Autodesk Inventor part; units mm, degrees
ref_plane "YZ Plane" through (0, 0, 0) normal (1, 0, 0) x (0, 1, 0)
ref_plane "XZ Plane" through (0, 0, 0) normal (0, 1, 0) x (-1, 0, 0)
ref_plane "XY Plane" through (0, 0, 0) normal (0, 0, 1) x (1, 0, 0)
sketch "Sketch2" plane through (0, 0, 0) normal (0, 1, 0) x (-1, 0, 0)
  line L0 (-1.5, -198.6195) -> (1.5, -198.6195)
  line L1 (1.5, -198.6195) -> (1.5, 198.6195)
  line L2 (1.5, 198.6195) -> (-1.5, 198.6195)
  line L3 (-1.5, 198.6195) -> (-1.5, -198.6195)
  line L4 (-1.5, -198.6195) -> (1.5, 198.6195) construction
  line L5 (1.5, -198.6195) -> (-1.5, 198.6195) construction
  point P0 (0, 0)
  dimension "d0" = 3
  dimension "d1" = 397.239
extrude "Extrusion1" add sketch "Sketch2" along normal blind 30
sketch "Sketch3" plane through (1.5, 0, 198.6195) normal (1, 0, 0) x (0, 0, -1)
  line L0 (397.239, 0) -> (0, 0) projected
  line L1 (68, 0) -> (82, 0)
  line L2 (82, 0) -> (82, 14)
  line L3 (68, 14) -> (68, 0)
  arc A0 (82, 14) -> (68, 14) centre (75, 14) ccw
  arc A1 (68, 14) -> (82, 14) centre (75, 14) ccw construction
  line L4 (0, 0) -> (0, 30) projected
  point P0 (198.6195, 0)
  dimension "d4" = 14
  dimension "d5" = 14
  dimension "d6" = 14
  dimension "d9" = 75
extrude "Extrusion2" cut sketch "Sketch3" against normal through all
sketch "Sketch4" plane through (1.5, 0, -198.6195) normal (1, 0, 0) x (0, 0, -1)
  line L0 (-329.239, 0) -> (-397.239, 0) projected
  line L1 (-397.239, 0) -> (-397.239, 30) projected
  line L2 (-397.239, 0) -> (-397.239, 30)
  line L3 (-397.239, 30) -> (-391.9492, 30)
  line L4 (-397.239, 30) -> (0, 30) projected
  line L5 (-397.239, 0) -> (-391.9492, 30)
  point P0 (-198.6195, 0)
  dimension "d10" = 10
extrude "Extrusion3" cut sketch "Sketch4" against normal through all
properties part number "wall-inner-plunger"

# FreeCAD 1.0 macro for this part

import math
import FreeCAD as App
import Part
import Sketcher
from FreeCAD import Vector
Q = App.Units.Quantity

doc = App.newDocument("Part")
body = doc.addObject("PartDesign::Body", "Body")

# Sketch on XZ plane
sketch1 = body.newObject("Sketcher::SketchObject", "Sketch")
sketch1.AttachmentSupport = (doc.getObject("XZ_Plane"), [""])
sketch1.MapMode = "FlatFace"
sketch1.addGeometry([
    Part.LineSegment(Vector(1.5, 198.6, 0), Vector(1.5, -198.6, 0)),
    Part.LineSegment(Vector(1.5, -198.6, 0), Vector(-1.5, -198.6, 0)),
    Part.LineSegment(Vector(-1.5, -198.6, 0), Vector(-1.5, 198.6, 0)),
    Part.LineSegment(Vector(-1.5, 198.6, 0), Vector(1.5, 198.6, 0)),
], False)
sketch1.addConstraint([
    Sketcher.Constraint("Coincident", 0, 2, 1, 1),
    Sketcher.Constraint("Coincident", 1, 2, 2, 1),
    Sketcher.Constraint("Coincident", 2, 2, 3, 1),
    Sketcher.Constraint("Coincident", 3, 2, 0, 1),
    Sketcher.Constraint("Vertical", 0),
    Sketcher.Constraint("Horizontal", 1),
    Sketcher.Constraint("Vertical", 2),
    Sketcher.Constraint("Horizontal", 3),
    Sketcher.Constraint("Symmetric", 0, 2, 2, 2, -1, 1),
    Sketcher.Constraint("DistanceX", 1, 2, 1, 1, Q("3 mm")),
    Sketcher.Constraint("DistanceY", 0, 2, 0, 1, Q("397.239 mm")),
])
pad1 = body.newObject("PartDesign::Pad", "Pad")
pad1.Profile = sketch1
pad1.Length = 30
pad1.Reversed = True

# Sketch on YZ plane
sketch2 = body.newObject("Sketcher::SketchObject", "Sketch001")
sketch2.AttachmentSupport = (doc.getObject("YZ_Plane"), [""])
sketch2.MapMode = "FlatFace"
sketch2.AttachmentOffset = App.Placement(Vector(0, 0, 1.5), App.Rotation())
sketch2.addGeometry([
    Part.LineSegment(Vector(0, 131, 0), Vector(0, 117, 0)),
    Part.LineSegment(Vector(0, 117, 0), Vector(14, 117, 0)),
    Part.ArcOfCircle(Part.Circle(Vector(14, 124, 0), Vector(0, 0, 1), 7), math.radians(-90), math.radians(90)),
    Part.LineSegment(Vector(14, 131, 0), Vector(0, 131, 0)),
], False)
sketch2.addConstraint([
    Sketcher.Constraint("Coincident", 0, 2, 1, 1),
    Sketcher.Constraint("Tangent", 1, 2, 2, 1),
    Sketcher.Constraint("Tangent", 2, 2, 3, 1),
    Sketcher.Constraint("Coincident", 3, 2, 0, 1),
    Sketcher.Constraint("Vertical", 0),
    Sketcher.Constraint("Horizontal", 1),
    Sketcher.Constraint("Horizontal", 3),
    Sketcher.Constraint("PointOnObject", 0, 2, -2),
    Sketcher.Constraint("Equal", 3, 0),
    Sketcher.Constraint("Radius", 2, Q("7 mm")),
    Sketcher.Constraint("DistanceY", -1, 1, 2, 3, Q("123.6195 mm")),
])
pocket1 = body.newObject("PartDesign::Pocket", "Pocket")
pocket1.Profile = sketch2
pocket1.Type = "ThroughAll"

# Sketch on YZ plane
sketch3 = body.newObject("Sketcher::SketchObject", "Sketch002")
sketch3.AttachmentSupport = (doc.getObject("YZ_Plane"), [""])
sketch3.MapMode = "FlatFace"
sketch3.AttachmentOffset = App.Placement(Vector(0, 0, 1.5), App.Rotation())
sketch3.addGeometry([
    Part.LineSegment(Vector(30, 199, 0), Vector(0, 199, 0)),
    Part.LineSegment(Vector(0, 199, 0), Vector(30, 193, 0)),
    Part.LineSegment(Vector(30, 193, 0), Vector(30, 199, 0)),
], False)
sketch3.addConstraint([
    Sketcher.Constraint("Coincident", 0, 2, 1, 1),
    Sketcher.Constraint("Coincident", 1, 2, 2, 1),
    Sketcher.Constraint("Coincident", 2, 2, 0, 1),
    Sketcher.Constraint("Horizontal", 0),
    Sketcher.Constraint("Vertical", 2),
    Sketcher.Constraint("PointOnObject", 0, 2, -2),
    Sketcher.Constraint("Angle", 1, Q("-10 deg")),
    Sketcher.Constraint("DistanceX", 0, 2, 0, 1, Q("30 mm")),
    Sketcher.Constraint("DistanceY", -1, 1, 0, 2, Q("198.6195 mm")),
])
pocket2 = body.newObject("PartDesign::Pocket", "Pocket001")
pocket2.Profile = sketch3
pocket2.Type = "ThroughAll"

doc.recompute()
